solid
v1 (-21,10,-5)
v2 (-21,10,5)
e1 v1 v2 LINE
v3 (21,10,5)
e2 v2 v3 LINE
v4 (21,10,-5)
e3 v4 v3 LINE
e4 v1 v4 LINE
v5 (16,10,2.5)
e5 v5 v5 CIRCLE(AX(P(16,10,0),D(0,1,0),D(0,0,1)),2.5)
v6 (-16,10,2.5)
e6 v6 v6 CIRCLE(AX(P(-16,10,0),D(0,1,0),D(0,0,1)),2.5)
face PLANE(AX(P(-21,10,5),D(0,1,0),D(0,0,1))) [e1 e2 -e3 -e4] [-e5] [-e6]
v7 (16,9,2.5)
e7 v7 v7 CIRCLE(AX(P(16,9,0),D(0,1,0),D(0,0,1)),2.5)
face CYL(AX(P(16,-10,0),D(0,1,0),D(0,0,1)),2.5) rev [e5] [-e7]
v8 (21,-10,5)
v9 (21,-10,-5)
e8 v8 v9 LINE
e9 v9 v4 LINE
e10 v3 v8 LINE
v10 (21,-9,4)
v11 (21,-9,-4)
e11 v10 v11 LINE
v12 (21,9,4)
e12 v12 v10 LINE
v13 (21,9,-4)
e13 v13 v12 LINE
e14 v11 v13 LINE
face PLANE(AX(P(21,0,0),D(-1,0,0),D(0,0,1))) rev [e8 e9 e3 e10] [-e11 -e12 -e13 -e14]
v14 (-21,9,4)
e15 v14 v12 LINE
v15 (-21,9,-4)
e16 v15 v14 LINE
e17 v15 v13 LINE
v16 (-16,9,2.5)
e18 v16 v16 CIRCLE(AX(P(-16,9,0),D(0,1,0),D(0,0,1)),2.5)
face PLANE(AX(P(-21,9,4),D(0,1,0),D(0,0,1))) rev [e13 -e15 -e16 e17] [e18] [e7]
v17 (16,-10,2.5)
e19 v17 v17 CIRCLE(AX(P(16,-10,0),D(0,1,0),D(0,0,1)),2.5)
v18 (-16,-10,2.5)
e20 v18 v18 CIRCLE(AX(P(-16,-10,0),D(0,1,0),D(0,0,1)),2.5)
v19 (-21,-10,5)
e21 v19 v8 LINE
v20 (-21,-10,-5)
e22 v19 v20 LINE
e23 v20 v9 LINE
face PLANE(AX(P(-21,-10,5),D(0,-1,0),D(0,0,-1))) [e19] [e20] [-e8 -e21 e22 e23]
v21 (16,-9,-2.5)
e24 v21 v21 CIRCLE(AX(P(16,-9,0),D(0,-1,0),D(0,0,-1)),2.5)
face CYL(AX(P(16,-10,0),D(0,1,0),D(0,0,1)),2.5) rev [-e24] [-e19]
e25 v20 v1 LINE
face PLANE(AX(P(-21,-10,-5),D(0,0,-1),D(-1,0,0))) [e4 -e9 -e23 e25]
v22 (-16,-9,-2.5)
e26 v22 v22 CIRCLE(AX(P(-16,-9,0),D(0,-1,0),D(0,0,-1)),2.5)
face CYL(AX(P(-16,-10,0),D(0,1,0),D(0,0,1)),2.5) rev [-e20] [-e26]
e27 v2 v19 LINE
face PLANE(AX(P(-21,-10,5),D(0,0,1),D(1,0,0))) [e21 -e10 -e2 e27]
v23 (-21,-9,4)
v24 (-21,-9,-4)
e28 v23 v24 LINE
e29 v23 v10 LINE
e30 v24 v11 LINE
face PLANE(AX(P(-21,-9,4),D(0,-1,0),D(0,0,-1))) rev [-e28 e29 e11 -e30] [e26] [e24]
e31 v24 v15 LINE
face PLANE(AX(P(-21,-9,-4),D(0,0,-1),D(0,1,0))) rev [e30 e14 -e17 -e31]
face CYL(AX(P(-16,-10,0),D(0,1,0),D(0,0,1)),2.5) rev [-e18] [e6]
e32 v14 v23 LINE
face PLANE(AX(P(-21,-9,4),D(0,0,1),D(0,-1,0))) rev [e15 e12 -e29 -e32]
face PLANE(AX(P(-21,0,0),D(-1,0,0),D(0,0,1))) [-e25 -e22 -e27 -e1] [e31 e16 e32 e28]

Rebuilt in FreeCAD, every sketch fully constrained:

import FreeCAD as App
import Part
import Sketcher


def add_polygon(sketch, points):
    """Adds a closed chain of lines whose ends are joined by coincident constraints."""
    first, n = sketch.GeometryCount, len(points)
    for a, b in zip(points, points[1:] + points[:1]):
        sketch.addGeometry(Part.LineSegment(App.Vector(*a, 0), App.Vector(*b, 0)), False)
    for i in range(n):
        sketch.addConstraint(Sketcher.Constraint("Coincident", first + i, 2, first + (i + 1) % n, 1))

doc = App.newDocument("Part")
body = doc.addObject("PartDesign::Body", "Body")

# Sketch on YZ plane
sketch1 = body.newObject("Sketcher::SketchObject", "Sketch")
sketch1.AttachmentSupport = (doc.getObject("YZ_Plane"), [""])
sketch1.MapMode = "FlatFace"
add_polygon(sketch1, [(10, 5), (-10, 5), (-10, -5), (10, -5)])  # lines 0-3
add_polygon(sketch1, [(-9, -4), (-9, 4), (9, 4), (9, -4)])  # lines 4-7
sketch1.addConstraint(Sketcher.Constraint("Horizontal", 0))
sketch1.addConstraint(Sketcher.Constraint("Vertical", 1))
sketch1.addConstraint(Sketcher.Constraint("Horizontal", 2))
sketch1.addConstraint(Sketcher.Constraint("Vertical", 3))
sketch1.addConstraint(Sketcher.Constraint("Vertical", 4))
sketch1.addConstraint(Sketcher.Constraint("Horizontal", 5))
sketch1.addConstraint(Sketcher.Constraint("Vertical", 6))
sketch1.addConstraint(Sketcher.Constraint("Horizontal", 7))
sketch1.addConstraint(Sketcher.Constraint("Symmetric", 0, 2, 2, 2, -1, 1))
sketch1.addConstraint(Sketcher.Constraint("Symmetric", 4, 2, 6, 2, -1, 1))
sketch1.addConstraint(Sketcher.Constraint("DistanceX", 0, 2, 0, 1, 20.0))
sketch1.addConstraint(Sketcher.Constraint("DistanceX", 5, 1, 5, 2, 18.0))
sketch1.addConstraint(Sketcher.Constraint("DistanceY", 1, 2, 1, 1, 10.0))
sketch1.addConstraint(Sketcher.Constraint("DistanceY", 4, 1, 4, 2, 8.0))
pad1 = body.newObject("PartDesign::Pad", "Pad")
pad1.Profile = sketch1
pad1.Type = "TwoLengths"
pad1.Length = 21
pad1.Length2 = 21

# Sketch on XZ plane
sketch2 = body.newObject("Sketcher::SketchObject", "Sketch001")
sketch2.AttachmentSupport = (doc.getObject("XZ_Plane"), [""])
sketch2.MapMode = "FlatFace"
sketch2.AttachmentOffset = App.Placement(App.Vector(0, 0, -10), App.Rotation())
sketch2.addGeometry(Part.Circle(App.Vector(-16, 0, 0), App.Vector(0, 0, 1), 2.5), False)
sketch2.addGeometry(Part.Circle(App.Vector(16, 0, 0), App.Vector(0, 0, 1), 2.5), False)
sketch2.addConstraint(Sketcher.Constraint("Equal", 0, 1))
sketch2.addConstraint(Sketcher.Constraint("Symmetric", 0, 3, 1, 3, -1, 1))
sketch2.addConstraint(Sketcher.Constraint("PointOnObject", 0, 3, -1))
sketch2.addConstraint(Sketcher.Constraint("Diameter", 0, 5.0))
sketch2.addConstraint(Sketcher.Constraint("DistanceX", 0, 3, -1, 1, 16.0))
pocket1 = body.newObject("PartDesign::Pocket", "Pocket")
pocket1.Profile = sketch2
pocket1.Length = 20
pocket1.Reversed = True

doc.recompute()
